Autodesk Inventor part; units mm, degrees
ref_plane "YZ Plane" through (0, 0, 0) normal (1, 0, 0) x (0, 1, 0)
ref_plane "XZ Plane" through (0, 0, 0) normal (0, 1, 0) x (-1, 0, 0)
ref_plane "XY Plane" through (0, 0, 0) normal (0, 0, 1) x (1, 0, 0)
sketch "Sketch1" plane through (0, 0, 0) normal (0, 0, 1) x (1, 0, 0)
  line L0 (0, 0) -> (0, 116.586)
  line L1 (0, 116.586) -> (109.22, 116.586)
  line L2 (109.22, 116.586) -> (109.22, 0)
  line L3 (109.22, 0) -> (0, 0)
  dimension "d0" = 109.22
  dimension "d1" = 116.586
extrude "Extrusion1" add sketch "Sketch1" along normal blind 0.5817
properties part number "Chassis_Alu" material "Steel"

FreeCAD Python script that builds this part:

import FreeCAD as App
import Part
import Sketcher
from FreeCAD import Vector
Q = App.Units.Quantity

doc = App.newDocument("Part")
params = doc.addObject("Spreadsheet::Sheet", "Params")
for row, (alias, value) in enumerate([
    ("sketch1_width", "4.3 in"),
    ("sketch1_height", "4.59 in"),
    ("pad1_length", "0.0229016 in"),
], start=1):
    params.set(f"A{row}", alias)
    params.set(f"B{row}", "=" + value)
    params.setAlias(f"B{row}", alias)

body = doc.addObject("PartDesign::Body", "Body")

# Sketch on XY plane
sketch1 = body.newObject("Sketcher::SketchObject", "Sketch")
sketch1.AttachmentSupport = (doc.getObject("XY_Plane"), [""])
sketch1.MapMode = "FlatFace"
sketch1.addGeometry([
    Part.LineSegment(Vector(0, 116.586, 0), Vector(0, 0, 0)),
    Part.LineSegment(Vector(0, 0, 0), Vector(109.22, 0, 0)),
    Part.LineSegment(Vector(109.22, 0, 0), Vector(109.22, 116.586, 0)),
    Part.LineSegment(Vector(109.22, 116.586, 0), Vector(0, 116.586, 0)),
], False)
sketch1.addConstraint([
    Sketcher.Constraint("Coincident", 0, 2, 1, 1),
    Sketcher.Constraint("Coincident", 1, 2, 2, 1),
    Sketcher.Constraint("Coincident", 2, 2, 3, 1),
    Sketcher.Constraint("Coincident", 3, 2, 0, 1),
    Sketcher.Constraint("Vertical", 0),
    Sketcher.Constraint("Horizontal", 1),
    Sketcher.Constraint("Vertical", 2),
    Sketcher.Constraint("Horizontal", 3),
    Sketcher.Constraint("Coincident", 0, 2, -1, 1),
    Sketcher.Constraint("DistanceX", 1, 1, 1, 2, Q("4.3 in")),
    Sketcher.Constraint("DistanceY", 0, 2, 0, 1, Q("4.59 in")),
])
sketch1.setExpression("Constraints[9]", "Params.sketch1_width")
sketch1.setExpression("Constraints[10]", "Params.sketch1_height")
pad1 = body.newObject("PartDesign::Pad", "Pad")
pad1.Profile = sketch1
pad1.setExpression("Length", "Params.pad1_length")

doc.recompute()
